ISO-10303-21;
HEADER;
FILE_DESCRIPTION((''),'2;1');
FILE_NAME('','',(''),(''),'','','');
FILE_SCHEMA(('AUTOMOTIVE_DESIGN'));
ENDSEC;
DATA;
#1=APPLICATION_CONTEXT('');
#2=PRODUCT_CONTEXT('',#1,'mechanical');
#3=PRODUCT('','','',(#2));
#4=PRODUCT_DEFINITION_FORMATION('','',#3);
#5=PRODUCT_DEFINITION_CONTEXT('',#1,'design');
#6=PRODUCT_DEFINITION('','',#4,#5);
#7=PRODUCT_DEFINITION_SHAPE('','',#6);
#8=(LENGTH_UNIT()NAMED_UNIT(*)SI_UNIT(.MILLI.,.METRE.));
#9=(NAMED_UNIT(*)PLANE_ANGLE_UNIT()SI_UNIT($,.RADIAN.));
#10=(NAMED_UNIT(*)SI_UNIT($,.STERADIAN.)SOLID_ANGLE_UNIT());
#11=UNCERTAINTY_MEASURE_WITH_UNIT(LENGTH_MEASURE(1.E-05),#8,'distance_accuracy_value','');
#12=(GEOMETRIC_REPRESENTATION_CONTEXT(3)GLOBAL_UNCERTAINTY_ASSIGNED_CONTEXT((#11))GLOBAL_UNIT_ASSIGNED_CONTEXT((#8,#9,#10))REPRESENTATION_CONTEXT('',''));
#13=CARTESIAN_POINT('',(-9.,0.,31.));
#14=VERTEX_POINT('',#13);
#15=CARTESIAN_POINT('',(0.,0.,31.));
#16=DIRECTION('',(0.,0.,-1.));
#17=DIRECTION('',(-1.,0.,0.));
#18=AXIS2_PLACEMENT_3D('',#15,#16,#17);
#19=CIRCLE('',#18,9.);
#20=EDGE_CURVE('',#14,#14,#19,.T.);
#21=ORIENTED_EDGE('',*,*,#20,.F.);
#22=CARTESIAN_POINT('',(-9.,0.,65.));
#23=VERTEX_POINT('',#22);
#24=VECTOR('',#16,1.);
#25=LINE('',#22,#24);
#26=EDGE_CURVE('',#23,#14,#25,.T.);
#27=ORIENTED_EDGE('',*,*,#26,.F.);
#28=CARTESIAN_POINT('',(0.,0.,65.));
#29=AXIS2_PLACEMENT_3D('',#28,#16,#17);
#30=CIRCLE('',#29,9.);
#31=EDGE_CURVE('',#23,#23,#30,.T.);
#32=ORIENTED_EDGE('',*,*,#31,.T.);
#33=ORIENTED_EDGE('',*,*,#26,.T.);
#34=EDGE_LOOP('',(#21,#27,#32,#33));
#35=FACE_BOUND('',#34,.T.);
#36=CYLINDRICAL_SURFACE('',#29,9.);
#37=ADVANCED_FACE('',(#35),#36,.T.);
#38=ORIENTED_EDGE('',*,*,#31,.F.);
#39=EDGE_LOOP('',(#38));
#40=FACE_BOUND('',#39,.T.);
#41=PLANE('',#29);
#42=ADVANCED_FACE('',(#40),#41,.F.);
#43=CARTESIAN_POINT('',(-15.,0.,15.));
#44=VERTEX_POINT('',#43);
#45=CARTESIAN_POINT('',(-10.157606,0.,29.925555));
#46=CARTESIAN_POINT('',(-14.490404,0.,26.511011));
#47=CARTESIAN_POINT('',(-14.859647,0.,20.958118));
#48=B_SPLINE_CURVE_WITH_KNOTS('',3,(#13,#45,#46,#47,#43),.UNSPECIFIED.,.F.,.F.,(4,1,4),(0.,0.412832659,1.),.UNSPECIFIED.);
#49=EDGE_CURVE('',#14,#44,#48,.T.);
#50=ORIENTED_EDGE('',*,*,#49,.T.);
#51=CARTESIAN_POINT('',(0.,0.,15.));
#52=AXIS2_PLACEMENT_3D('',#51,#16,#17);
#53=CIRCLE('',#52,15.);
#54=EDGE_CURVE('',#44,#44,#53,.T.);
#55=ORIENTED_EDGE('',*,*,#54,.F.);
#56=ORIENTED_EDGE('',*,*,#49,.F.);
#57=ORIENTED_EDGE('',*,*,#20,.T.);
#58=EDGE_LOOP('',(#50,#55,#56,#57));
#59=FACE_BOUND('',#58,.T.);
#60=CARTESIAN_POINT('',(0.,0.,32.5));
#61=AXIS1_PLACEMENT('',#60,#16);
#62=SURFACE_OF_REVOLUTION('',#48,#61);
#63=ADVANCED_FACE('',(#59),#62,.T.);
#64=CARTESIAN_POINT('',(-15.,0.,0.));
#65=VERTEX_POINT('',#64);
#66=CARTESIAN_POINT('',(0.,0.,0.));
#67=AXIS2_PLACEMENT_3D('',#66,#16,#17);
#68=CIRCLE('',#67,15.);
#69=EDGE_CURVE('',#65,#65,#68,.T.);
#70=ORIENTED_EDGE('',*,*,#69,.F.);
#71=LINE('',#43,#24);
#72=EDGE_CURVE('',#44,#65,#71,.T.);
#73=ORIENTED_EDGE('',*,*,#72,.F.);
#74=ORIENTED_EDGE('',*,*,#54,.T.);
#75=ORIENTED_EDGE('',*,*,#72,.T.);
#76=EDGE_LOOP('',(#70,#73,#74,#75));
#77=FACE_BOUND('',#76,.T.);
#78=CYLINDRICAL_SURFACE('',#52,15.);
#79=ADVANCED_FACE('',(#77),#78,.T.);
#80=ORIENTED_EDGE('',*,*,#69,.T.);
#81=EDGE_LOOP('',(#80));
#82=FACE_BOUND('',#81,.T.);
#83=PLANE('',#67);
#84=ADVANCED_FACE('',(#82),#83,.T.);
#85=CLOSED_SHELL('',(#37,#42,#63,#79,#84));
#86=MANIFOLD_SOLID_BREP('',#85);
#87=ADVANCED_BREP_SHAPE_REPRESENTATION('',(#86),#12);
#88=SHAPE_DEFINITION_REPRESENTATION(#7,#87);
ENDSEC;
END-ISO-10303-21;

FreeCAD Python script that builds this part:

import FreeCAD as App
import Part
import Sketcher

V = App.Vector
Q = App.Units.Quantity

doc = App.newDocument("Part")
body = doc.addObject("PartDesign::Body", "Body")

sketch1 = doc.addObject("Sketcher::SketchObject", "Sketch")
body.addObject(sketch1)
sketch1.AttachmentSupport = (doc.XZ_Plane, [""])
sketch1.MapMode = "FlatFace"
sketch1.addGeometry([
    Part.LineSegment(V(0, 0, 0), V(0, 65, 0)),
    Part.LineSegment(V(0, 65, 0), V(-9, 65, 0)),
    Part.LineSegment(V(-9, 65, 0), V(-9, 31, 0)),
    Part.BSplineCurve([V(-9, 31, 0), V(-10.157606, 29.925555, 0), V(-14.490404, 26.511011, 0), V(-14.859647, 20.958118, 0), V(-15, 15, 0)], [4, 1, 4], [0, 0.412832659, 1], False, 3, [1, 1, 1, 1, 1], False),
    Part.LineSegment(V(-15, 15, 0), V(-15, 0, 0)),
    Part.LineSegment(V(-15, 0, 0), V(0, 0, 0)),
], False)
sketch1.addConstraint([
    Sketcher.Constraint("Block", 3),
    Sketcher.Constraint("Coincident", 0, 2, 1, 1),
    Sketcher.Constraint("Coincident", 1, 2, 2, 1),
    Sketcher.Constraint("Coincident", 2, 2, 3, 1),
    Sketcher.Constraint("Coincident", 3, 2, 4, 1),
    Sketcher.Constraint("Coincident", 4, 2, 5, 1),
    Sketcher.Constraint("Coincident", 5, 2, 0, 1),
    Sketcher.Constraint("Vertical", 0),
    Sketcher.Constraint("Horizontal", 1),
    Sketcher.Constraint("Vertical", 2),
    Sketcher.Constraint("Vertical", 4),
    Sketcher.Constraint("Horizontal", 5),
    Sketcher.Constraint("Coincident", 5, 2, -1, 1),
    Sketcher.Constraint("DistanceY", 0, 1, 0, 2, Q("65 mm")),
])
revolution = doc.addObject("PartDesign::Revolution", "Revolution")
body.addObject(revolution)
revolution.Profile = sketch1
revolution.ReferenceAxis = (sketch1, ["V_Axis"])
revolution.Angle = 360

doc.recompute()
